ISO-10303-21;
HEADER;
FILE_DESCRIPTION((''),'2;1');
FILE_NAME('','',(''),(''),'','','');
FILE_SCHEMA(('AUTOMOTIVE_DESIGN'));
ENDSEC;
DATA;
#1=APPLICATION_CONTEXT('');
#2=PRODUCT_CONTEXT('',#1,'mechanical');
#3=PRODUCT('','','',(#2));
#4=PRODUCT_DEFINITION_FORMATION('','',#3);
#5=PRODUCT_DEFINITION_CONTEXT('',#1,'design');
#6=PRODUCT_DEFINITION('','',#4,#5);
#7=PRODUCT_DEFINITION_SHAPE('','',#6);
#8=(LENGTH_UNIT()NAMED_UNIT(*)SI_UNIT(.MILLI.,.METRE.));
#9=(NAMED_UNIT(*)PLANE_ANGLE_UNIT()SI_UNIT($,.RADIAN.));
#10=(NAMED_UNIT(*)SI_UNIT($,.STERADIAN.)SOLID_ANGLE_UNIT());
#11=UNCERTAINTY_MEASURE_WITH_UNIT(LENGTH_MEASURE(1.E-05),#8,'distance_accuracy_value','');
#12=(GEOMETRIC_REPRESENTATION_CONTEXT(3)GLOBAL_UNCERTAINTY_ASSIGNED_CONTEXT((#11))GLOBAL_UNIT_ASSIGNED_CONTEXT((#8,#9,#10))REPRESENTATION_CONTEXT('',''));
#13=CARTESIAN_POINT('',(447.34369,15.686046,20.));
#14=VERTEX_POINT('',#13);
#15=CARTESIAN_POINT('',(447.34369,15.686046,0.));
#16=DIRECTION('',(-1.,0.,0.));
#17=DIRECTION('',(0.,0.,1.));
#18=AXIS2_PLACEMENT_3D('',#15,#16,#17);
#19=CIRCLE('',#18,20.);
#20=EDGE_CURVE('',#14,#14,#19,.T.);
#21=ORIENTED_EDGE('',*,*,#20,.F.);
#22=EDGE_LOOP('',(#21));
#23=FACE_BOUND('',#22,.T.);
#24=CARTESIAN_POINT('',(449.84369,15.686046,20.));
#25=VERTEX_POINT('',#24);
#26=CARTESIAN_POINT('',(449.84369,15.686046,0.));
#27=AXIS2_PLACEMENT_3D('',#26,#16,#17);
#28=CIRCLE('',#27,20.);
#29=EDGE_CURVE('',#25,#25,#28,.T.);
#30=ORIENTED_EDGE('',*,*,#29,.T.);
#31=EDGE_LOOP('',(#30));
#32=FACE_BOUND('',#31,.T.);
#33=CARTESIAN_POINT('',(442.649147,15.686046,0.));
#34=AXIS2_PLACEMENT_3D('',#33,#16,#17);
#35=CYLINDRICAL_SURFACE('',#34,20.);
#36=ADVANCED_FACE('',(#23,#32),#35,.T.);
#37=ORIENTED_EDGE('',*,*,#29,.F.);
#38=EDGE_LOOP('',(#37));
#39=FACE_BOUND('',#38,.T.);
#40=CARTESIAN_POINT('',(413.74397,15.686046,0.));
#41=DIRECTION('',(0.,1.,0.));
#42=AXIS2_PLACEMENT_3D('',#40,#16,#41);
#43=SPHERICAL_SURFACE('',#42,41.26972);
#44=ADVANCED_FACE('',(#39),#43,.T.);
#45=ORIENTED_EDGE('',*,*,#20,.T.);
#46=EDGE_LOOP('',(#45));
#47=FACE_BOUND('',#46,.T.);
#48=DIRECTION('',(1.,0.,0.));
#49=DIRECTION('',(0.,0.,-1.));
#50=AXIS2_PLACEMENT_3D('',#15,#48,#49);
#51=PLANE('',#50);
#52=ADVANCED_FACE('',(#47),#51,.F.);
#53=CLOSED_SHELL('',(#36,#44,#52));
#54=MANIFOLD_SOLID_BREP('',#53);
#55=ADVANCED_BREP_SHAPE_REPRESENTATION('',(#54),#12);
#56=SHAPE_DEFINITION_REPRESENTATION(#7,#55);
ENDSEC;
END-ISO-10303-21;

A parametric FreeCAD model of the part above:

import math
import FreeCAD as App
import Part
import Sketcher
Q = App.Units.Quantity

doc = App.newDocument("Part")
body = doc.addObject("PartDesign::Body", "Body")

# Sketch on XY plane
sketch1 = body.newObject("Sketcher::SketchObject", "Sketch")
sketch1.AttachmentSupport = (doc.getObject("XY_Plane"), [""])
sketch1.MapMode = "FlatFace"
sketch1.addGeometry([
    Part.LineSegment(App.Vector(447.3, 35.7, 0), App.Vector(447.3, 15.7, 0)),
    Part.LineSegment(App.Vector(447.3, 15.7, 0), App.Vector(455, 15.7, 0)),
    Part.ArcOfCircle(Part.Circle(App.Vector(413.7, 15.7, 0), App.Vector(0, 0, 1), 41.3), math.radians(0), math.radians(29)),
    Part.LineSegment(App.Vector(449.8, 35.7, 0), App.Vector(447.3, 35.7, 0)),
], False)
sketch1.addGeometry(Part.LineSegment(App.Vector(413.7, 15.7, 0), App.Vector(455, 15.7, 0)), True)  # axis
sketch1.addConstraint([
    Sketcher.Constraint("Coincident", 0, 2, 1, 1),
    Sketcher.Constraint("Coincident", 1, 2, 2, 1),
    Sketcher.Constraint("Coincident", 2, 2, 3, 1),
    Sketcher.Constraint("Coincident", 3, 2, 0, 1),
    Sketcher.Constraint("Vertical", 0),
    Sketcher.Constraint("Horizontal", 1),
    Sketcher.Constraint("Horizontal", 3),
    Sketcher.Constraint("Horizontal", 4),
    Sketcher.Constraint("Coincident", 4, 1, 2, 3),
    Sketcher.Constraint("Coincident", 4, 2, 1, 2),
    Sketcher.Constraint("DistanceY", 0, 2, 0, 1, Q("20 mm")),
    Sketcher.Constraint("DistanceX", 3, 2, 3, 1, Q("2.5 mm")),
    Sketcher.Constraint("DistanceX", 1, 1, 1, 2, Q("7.67 mm")),
    Sketcher.Constraint("DistanceX", -1, 1, 2, 3, Q("413.74397 mm")),
    Sketcher.Constraint("DistanceY", -1, 1, 2, 3, Q("15.686046 mm")),
])
revolution = body.newObject("PartDesign::Revolution", "Revolution")
revolution.Profile = sketch1
revolution.ReferenceAxis = (sketch1, ["Axis0"])
revolution.Angle = 360

doc.recompute()
